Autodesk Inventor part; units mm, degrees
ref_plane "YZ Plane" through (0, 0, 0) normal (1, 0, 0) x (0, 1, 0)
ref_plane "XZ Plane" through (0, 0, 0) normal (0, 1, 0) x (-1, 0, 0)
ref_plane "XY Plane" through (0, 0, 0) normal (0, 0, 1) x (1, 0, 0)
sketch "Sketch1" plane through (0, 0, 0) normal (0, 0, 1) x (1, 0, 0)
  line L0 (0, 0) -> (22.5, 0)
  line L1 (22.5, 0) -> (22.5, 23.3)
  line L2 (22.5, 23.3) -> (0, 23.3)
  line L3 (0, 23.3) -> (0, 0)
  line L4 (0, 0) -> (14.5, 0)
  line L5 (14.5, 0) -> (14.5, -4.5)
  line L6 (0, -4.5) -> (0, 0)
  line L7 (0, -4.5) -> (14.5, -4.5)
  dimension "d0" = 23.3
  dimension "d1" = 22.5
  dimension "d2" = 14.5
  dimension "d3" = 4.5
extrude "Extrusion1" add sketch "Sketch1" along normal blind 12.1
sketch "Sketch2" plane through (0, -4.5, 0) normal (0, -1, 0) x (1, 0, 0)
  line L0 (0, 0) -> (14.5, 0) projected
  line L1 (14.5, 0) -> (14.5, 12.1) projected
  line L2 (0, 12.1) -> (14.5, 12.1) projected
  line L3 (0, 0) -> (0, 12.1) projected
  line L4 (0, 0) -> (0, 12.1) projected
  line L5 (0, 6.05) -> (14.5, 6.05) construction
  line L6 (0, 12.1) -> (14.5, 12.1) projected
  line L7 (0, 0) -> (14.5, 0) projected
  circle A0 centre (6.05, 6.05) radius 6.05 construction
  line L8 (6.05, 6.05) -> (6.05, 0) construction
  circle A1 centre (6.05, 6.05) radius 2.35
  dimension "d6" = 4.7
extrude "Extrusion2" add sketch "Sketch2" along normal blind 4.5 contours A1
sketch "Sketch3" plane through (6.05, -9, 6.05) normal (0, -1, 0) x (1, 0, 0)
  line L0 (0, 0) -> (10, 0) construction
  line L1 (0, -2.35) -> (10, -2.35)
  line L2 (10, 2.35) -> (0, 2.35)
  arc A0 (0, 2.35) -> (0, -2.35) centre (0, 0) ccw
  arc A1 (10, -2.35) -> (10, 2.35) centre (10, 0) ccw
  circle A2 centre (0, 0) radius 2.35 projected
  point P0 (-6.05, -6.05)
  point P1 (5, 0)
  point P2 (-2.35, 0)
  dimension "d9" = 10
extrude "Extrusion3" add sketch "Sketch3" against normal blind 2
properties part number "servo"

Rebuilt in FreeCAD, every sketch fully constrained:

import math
import FreeCAD as App
import Part
import Sketcher

V = App.Vector
Q = App.Units.Quantity

doc = App.newDocument("Part")
body = doc.addObject("PartDesign::Body", "Body")

# Sketch on XY plane
sketch1 = doc.addObject("Sketcher::SketchObject", "Sketch")
body.addObject(sketch1)
sketch1.AttachmentSupport = (doc.XY_Plane, [""])
sketch1.MapMode = "FlatFace"
sketch1.addGeometry(Part.LineSegment(V(0, 23.3, 0), V(0, -4.5, 0)), False)
sketch1.addGeometry(Part.LineSegment(V(0, -4.5, 0), V(14.5, -4.5, 0)), False)
sketch1.addGeometry(Part.LineSegment(V(14.5, -4.5, 0), V(14.5, 0, 0)), False)
sketch1.addGeometry(Part.LineSegment(V(14.5, 0, 0), V(22.5, 0, 0)), False)
sketch1.addGeometry(Part.LineSegment(V(22.5, 0, 0), V(22.5, 23.3, 0)), False)
sketch1.addGeometry(Part.LineSegment(V(22.5, 23.3, 0), V(0, 23.3, 0)), False)
sketch1.addConstraint(Sketcher.Constraint("Coincident", 0, 2, 1, 1))
sketch1.addConstraint(Sketcher.Constraint("Coincident", 1, 2, 2, 1))
sketch1.addConstraint(Sketcher.Constraint("Coincident", 2, 2, 3, 1))
sketch1.addConstraint(Sketcher.Constraint("Coincident", 3, 2, 4, 1))
sketch1.addConstraint(Sketcher.Constraint("Coincident", 4, 2, 5, 1))
sketch1.addConstraint(Sketcher.Constraint("Coincident", 5, 2, 0, 1))
sketch1.addConstraint(Sketcher.Constraint("Vertical", 0))
sketch1.addConstraint(Sketcher.Constraint("Horizontal", 1))
sketch1.addConstraint(Sketcher.Constraint("Vertical", 2))
sketch1.addConstraint(Sketcher.Constraint("Horizontal", 3))
sketch1.addConstraint(Sketcher.Constraint("Vertical", 4))
sketch1.addConstraint(Sketcher.Constraint("Horizontal", 5))
sketch1.addConstraint(Sketcher.Constraint("PointOnObject", 0, 2, -2))
sketch1.addConstraint(Sketcher.Constraint("PointOnObject", 2, 2, -1))
sketch1.addConstraint(Sketcher.Constraint("DistanceX", 1, 1, 1, 2, Q("14.5 mm")))
sketch1.addConstraint(Sketcher.Constraint("DistanceX", 5, 2, 5, 1, Q("22.5 mm")))
sketch1.addConstraint(Sketcher.Constraint("DistanceY", 2, 1, 2, 2, Q("4.5 mm")))
sketch1.addConstraint(Sketcher.Constraint("DistanceY", 4, 1, 4, 2, Q("23.3 mm")))
pad1 = doc.addObject("PartDesign::Pad", "Pad")
body.addObject(pad1)
pad1.Profile = sketch1
pad1.Length = 12.1

# Sketch on XZ plane
sketch2 = doc.addObject("Sketcher::SketchObject", "Sketch001")
body.addObject(sketch2)
sketch2.AttachmentSupport = (doc.XZ_Plane, [""])
sketch2.MapMode = "FlatFace"
sketch2.AttachmentOffset = App.Placement(V(0, 0, 4.5), App.Rotation())
sketch2.addGeometry(Part.Circle(V(6, 6, 0), V(0, 0, 1), 2.4), False)
sketch2.addConstraint(Sketcher.Constraint("Diameter", 0, Q("4.7 mm")))
sketch2.addConstraint(Sketcher.Constraint("DistanceX", -1, 1, 0, 3, Q("6.05 mm")))
sketch2.addConstraint(Sketcher.Constraint("DistanceY", -1, 1, 0, 3, Q("6.05 mm")))
pad2 = doc.addObject("PartDesign::Pad", "Pad001")
body.addObject(pad2)
pad2.Profile = sketch2
pad2.Length = 4.5

# Sketch on XZ plane
sketch3 = doc.addObject("Sketcher::SketchObject", "Sketch002")
body.addObject(sketch3)
sketch3.AttachmentSupport = (doc.XZ_Plane, [""])
sketch3.MapMode = "FlatFace"
sketch3.AttachmentOffset = App.Placement(V(0, 0, 9), App.Rotation())
sketch3.addGeometry(Part.LineSegment(V(16.1, 8.4, 0), V(6, 8.4, 0)), False)
sketch3.addGeometry(Part.ArcOfCircle(Part.Circle(V(6, 6, 0), V(0, 0, 1), 2.4), math.radians(90), math.radians(270)), False)
sketch3.addGeometry(Part.LineSegment(V(6, 3.7, 0), V(16.1, 3.7, 0)), False)
sketch3.addGeometry(Part.ArcOfCircle(Part.Circle(V(16.1, 6, 0), V(0, 0, 1), 2.4), math.radians(-90), math.radians(90)), False)
sketch3.addConstraint(Sketcher.Constraint("Tangent", 0, 2, 1, 1))
sketch3.addConstraint(Sketcher.Constraint("Tangent", 1, 2, 2, 1))
sketch3.addConstraint(Sketcher.Constraint("Tangent", 2, 2, 3, 1))
sketch3.addConstraint(Sketcher.Constraint("Tangent", 3, 2, 0, 1))
sketch3.addConstraint(Sketcher.Constraint("Horizontal", 0))
sketch3.addConstraint(Sketcher.Constraint("Horizontal", 2))
sketch3.addConstraint(Sketcher.Constraint("DistanceX", 0, 2, 0, 1, Q("10 mm")))
sketch3.addConstraint(Sketcher.Constraint("Radius", 1, Q("2.35 mm")))
sketch3.addConstraint(Sketcher.Constraint("DistanceY", -1, 1, 0, 2, Q("8.4 mm")))
sketch3.addConstraint(Sketcher.Constraint("DistanceX", -1, 1, 1, 3, Q("6.05 mm")))
pad3 = doc.addObject("PartDesign::Pad", "Pad002")
body.addObject(pad3)
pad3.Profile = sketch3
pad3.Length = 2
pad3.Reversed = True

doc.recompute()
